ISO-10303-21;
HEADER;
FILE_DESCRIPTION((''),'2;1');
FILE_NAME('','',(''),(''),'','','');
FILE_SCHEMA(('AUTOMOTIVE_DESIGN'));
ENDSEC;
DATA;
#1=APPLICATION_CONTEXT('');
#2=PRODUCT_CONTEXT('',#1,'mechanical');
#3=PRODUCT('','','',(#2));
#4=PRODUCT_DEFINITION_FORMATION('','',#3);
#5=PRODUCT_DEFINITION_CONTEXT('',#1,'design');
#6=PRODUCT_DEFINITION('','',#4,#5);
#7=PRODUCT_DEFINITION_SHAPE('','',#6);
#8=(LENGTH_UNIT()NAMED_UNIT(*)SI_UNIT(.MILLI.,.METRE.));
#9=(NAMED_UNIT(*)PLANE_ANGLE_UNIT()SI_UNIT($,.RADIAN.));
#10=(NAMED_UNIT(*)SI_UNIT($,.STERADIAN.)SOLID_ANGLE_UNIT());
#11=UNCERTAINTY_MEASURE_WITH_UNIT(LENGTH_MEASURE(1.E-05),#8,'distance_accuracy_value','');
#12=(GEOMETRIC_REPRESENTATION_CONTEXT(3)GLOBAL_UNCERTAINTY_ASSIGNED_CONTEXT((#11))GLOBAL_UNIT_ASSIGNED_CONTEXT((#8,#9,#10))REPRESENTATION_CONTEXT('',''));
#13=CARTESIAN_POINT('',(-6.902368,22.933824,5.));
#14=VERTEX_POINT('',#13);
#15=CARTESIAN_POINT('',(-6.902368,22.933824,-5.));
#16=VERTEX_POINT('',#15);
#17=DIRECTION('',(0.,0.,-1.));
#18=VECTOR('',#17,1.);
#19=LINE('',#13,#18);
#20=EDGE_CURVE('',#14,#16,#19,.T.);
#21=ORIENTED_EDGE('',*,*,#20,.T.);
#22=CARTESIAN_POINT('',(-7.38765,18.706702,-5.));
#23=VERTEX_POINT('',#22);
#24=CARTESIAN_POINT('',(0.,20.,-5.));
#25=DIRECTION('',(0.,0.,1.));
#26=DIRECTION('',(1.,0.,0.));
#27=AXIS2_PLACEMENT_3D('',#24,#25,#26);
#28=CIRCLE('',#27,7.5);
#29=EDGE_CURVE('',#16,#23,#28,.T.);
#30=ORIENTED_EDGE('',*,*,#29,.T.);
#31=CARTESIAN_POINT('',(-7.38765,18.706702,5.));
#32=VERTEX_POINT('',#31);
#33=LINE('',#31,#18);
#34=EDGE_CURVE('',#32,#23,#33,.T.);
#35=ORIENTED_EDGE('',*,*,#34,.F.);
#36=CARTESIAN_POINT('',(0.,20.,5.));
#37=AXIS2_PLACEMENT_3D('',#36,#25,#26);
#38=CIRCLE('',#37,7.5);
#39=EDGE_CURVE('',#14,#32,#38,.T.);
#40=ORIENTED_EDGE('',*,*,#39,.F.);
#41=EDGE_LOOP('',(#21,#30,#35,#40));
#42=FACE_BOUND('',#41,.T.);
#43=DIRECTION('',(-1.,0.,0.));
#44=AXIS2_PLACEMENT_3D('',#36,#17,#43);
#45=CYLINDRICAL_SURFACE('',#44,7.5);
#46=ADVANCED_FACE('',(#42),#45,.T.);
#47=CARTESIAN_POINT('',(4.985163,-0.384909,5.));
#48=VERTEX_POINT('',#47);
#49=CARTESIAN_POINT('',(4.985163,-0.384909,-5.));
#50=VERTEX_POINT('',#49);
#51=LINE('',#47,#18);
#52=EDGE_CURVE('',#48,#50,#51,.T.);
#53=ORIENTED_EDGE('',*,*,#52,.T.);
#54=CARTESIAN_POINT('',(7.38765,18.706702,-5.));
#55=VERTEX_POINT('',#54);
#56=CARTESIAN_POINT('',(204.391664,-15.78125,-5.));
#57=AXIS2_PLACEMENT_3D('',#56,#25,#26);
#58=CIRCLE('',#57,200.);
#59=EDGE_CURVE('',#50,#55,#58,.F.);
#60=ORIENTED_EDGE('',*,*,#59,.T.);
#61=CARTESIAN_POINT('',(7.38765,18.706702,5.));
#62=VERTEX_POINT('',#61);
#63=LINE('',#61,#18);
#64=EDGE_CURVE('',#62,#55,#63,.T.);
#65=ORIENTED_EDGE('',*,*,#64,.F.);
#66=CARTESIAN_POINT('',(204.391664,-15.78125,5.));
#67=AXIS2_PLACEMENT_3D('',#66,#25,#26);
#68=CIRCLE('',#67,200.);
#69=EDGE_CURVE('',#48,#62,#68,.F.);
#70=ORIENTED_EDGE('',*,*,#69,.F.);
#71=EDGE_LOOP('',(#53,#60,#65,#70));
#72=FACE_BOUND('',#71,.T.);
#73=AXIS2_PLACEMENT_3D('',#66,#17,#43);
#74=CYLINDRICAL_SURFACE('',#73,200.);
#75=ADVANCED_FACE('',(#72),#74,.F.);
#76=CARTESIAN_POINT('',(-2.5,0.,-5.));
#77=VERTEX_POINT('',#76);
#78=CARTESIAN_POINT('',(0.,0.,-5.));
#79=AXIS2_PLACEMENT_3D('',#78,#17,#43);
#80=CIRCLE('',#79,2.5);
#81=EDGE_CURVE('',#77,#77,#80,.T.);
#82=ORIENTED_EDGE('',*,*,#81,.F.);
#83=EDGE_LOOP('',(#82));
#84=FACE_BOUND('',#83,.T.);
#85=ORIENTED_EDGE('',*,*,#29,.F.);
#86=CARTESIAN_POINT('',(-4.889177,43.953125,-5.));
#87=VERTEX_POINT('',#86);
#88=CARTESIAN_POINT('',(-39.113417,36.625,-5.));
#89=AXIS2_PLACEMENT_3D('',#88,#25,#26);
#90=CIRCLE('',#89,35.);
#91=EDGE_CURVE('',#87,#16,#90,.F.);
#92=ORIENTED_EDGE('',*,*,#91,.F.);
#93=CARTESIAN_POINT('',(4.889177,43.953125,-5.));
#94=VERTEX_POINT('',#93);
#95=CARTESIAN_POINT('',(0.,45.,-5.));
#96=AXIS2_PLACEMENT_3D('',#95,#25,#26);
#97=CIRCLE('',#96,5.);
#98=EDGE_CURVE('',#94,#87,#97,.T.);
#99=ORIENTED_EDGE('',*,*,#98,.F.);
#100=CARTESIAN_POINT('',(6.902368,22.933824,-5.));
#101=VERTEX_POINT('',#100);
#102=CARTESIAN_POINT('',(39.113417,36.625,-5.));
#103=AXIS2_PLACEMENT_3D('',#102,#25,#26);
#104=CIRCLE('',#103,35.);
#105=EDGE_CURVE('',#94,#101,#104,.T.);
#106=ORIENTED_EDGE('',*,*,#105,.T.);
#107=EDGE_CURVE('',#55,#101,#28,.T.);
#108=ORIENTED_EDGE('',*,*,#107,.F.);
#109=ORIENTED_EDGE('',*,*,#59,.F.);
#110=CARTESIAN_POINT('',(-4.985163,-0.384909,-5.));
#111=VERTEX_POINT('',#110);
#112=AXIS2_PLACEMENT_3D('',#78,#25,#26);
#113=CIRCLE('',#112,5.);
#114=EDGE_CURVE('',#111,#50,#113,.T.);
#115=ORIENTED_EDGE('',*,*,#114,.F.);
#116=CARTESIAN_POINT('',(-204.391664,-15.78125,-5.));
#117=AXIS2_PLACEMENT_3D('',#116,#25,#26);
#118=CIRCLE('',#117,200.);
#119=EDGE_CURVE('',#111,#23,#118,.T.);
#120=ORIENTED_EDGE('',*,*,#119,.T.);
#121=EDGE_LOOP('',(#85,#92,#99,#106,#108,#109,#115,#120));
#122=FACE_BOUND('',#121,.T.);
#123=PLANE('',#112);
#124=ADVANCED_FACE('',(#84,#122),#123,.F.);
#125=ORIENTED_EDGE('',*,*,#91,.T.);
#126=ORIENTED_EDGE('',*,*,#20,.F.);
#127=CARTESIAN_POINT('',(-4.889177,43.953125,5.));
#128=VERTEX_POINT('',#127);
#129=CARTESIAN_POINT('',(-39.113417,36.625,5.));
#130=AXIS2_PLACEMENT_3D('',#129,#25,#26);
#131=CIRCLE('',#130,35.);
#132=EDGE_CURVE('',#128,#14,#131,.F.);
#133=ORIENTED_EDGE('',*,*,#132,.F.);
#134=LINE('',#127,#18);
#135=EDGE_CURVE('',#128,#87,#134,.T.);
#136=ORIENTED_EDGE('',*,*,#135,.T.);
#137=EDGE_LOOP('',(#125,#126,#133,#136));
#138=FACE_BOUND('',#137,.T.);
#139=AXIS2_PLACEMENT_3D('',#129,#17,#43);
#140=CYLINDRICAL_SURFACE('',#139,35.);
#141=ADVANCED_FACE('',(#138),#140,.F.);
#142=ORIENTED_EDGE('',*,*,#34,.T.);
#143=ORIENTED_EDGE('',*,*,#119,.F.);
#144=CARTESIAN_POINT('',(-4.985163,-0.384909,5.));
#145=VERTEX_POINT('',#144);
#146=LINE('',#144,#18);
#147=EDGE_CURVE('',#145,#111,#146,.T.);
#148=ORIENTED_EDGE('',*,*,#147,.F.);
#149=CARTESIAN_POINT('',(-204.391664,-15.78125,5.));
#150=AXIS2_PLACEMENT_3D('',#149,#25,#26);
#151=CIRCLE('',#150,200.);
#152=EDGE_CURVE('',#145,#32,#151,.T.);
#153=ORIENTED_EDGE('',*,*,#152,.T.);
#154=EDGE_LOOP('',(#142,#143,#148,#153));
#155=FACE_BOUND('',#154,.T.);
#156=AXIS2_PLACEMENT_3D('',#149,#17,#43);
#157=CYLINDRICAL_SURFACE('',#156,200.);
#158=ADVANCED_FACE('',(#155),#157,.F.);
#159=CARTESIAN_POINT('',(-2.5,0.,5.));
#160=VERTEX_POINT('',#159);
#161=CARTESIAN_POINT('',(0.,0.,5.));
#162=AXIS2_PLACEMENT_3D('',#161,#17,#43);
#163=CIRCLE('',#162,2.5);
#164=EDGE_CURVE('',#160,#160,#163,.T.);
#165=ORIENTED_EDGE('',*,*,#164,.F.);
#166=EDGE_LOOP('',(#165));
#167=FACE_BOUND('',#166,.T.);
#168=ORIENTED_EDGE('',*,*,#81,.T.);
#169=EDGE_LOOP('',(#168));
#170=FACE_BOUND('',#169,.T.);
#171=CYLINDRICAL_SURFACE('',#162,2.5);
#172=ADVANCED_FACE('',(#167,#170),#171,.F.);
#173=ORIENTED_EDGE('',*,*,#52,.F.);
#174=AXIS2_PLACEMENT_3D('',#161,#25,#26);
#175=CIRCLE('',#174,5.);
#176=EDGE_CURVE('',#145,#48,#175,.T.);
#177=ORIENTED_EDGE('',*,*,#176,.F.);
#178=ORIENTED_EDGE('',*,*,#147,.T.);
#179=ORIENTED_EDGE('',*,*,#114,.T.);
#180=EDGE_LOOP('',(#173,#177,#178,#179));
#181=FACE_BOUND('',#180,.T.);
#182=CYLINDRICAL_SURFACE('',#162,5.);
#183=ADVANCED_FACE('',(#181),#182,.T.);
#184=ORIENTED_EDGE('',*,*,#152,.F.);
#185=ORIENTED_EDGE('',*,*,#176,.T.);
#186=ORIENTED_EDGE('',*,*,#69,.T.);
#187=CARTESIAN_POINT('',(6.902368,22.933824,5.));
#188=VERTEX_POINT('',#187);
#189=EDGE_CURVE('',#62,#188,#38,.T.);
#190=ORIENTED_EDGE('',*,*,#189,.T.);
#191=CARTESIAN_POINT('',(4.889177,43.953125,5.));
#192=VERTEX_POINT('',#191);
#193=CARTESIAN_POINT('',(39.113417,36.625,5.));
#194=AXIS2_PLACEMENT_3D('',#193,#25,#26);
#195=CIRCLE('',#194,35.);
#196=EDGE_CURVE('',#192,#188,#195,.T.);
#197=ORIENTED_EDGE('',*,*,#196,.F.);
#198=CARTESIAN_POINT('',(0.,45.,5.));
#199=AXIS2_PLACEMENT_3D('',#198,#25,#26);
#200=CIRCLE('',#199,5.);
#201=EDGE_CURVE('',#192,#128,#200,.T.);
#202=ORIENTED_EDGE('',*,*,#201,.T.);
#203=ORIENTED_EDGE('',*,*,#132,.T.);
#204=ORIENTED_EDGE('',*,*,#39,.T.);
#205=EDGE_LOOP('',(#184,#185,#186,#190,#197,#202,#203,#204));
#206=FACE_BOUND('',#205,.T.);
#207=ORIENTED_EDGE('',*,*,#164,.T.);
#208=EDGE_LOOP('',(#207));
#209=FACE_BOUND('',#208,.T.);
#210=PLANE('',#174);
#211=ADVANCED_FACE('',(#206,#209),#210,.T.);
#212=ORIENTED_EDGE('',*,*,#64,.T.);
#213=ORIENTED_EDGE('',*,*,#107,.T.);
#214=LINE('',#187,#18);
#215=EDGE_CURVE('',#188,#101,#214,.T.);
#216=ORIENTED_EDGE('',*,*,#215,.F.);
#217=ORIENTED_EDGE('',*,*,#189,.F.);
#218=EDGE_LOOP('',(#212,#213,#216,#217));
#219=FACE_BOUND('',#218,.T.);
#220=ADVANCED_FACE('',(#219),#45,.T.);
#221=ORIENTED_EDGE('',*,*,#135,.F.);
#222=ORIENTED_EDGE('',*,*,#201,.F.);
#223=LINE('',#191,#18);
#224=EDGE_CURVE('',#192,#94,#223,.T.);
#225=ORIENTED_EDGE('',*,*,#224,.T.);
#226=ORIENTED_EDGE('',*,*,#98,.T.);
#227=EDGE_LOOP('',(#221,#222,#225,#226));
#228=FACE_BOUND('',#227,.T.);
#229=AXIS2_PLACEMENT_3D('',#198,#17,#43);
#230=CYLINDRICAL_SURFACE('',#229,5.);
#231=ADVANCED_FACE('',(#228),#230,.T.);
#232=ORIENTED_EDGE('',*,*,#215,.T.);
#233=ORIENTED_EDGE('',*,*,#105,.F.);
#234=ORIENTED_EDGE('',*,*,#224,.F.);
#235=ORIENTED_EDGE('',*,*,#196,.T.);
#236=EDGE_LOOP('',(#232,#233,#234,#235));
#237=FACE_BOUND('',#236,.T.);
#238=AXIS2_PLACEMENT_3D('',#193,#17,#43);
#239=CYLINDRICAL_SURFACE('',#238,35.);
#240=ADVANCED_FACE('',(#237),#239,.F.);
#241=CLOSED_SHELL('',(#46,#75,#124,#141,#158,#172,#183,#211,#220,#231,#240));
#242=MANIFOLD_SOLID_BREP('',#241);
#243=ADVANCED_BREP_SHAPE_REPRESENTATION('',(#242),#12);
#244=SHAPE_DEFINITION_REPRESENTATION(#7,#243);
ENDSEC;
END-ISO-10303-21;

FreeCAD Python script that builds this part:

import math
import FreeCAD as App
import Part
import Sketcher
from FreeCAD import Vector

doc = App.newDocument("Part")
body = doc.addObject("PartDesign::Body", "Body")

# Sketch on XY plane
sketch1 = body.newObject("Sketcher::SketchObject", "Sketch")
sketch1.AttachmentSupport = (doc.getObject("XY_Plane"), [""])
sketch1.MapMode = "FlatFace"
sketch1.addGeometry(Part.ArcOfCircle(Part.Circle(Vector(39.1, 36.6, 0), Vector(0, 0, 1), 35), math.radians(168), math.radians(203)), False)
sketch1.addGeometry(Part.ArcOfCircle(Part.Circle(Vector(0, 45, 0), Vector(0, 0, 1), 5), math.radians(-12), math.radians(192)), False)
sketch1.addGeometry(Part.ArcOfCircle(Part.Circle(Vector(-39.1, 36.6, 0), Vector(0, 0, 1), 35), math.radians(-23), math.radians(12)), False)
sketch1.addGeometry(Part.ArcOfCircle(Part.Circle(Vector(0, 20, 0), Vector(0, 0, 1), 7.5), math.radians(157), math.radians(190)), False)
sketch1.addGeometry(Part.ArcOfCircle(Part.Circle(Vector(-204.4, -15.8, 0), Vector(0, 0, 1), 200), math.radians(4.42), math.radians(9.93)), False)
sketch1.addGeometry(Part.ArcOfCircle(Part.Circle(Vector(0, 0, 0), Vector(0, 0, 1), 5), math.radians(-176), math.radians(-4)), False)
sketch1.addGeometry(Part.ArcOfCircle(Part.Circle(Vector(204.4, -15.8, 0), Vector(0, 0, 1), 200), math.radians(170.07), math.radians(175.58)), False)
sketch1.addGeometry(Part.ArcOfCircle(Part.Circle(Vector(0, 20, 0), Vector(0, 0, 1), 7.5), math.radians(-10), math.radians(23)), False)
sketch1.addConstraint(Sketcher.Constraint("Tangent", 0, 1, 1, 1))
sketch1.addConstraint(Sketcher.Constraint("Tangent", 1, 2, 2, 2))
sketch1.addConstraint(Sketcher.Constraint("Tangent", 2, 1, 3, 1))
sketch1.addConstraint(Sketcher.Constraint("Tangent", 3, 2, 4, 2))
sketch1.addConstraint(Sketcher.Constraint("Tangent", 4, 1, 5, 1))
sketch1.addConstraint(Sketcher.Constraint("Tangent", 5, 2, 6, 2))
sketch1.addConstraint(Sketcher.Constraint("Tangent", 6, 1, 7, 1))
sketch1.addConstraint(Sketcher.Constraint("Tangent", 7, 2, 0, 2))
sketch1.addConstraint(Sketcher.Constraint("Coincident", 5, 3, -1, 1))
sketch1.addConstraint(Sketcher.Constraint("Coincident", 7, 3, 3, 3))
sketch1.addConstraint(Sketcher.Constraint("Equal", 0, 2))
sketch1.addConstraint(Sketcher.Constraint("Equal", 1, 5))
sketch1.addConstraint(Sketcher.Constraint("Equal", 4, 6))
sketch1.addConstraint(Sketcher.Constraint("Equal", 3, 7))
sketch1.addConstraint(Sketcher.Constraint("Symmetric", 0, 3, 2, 3, -2))
sketch1.addConstraint(Sketcher.Constraint("Radius", 0, 35.0))
sketch1.addConstraint(Sketcher.Constraint("Radius", 1, 5.0))
sketch1.addConstraint(Sketcher.Constraint("Radius", 4, 199.999999))
sketch1.addConstraint(Sketcher.Constraint("Radius", 3, 7.5))
sketch1.addConstraint(Sketcher.Constraint("DistanceY", -1, 1, 1, 3, 45.0))
sketch1.addConstraint(Sketcher.Constraint("DistanceY", -1, 1, 3, 3, 20.0))
pad1 = body.newObject("PartDesign::Pad", "Pad")
pad1.Profile = sketch1
pad1.Length = 10
pad1.Midplane = True

# Sketch on XY plane
sketch2 = body.newObject("Sketcher::SketchObject", "Sketch001")
sketch2.AttachmentSupport = (doc.getObject("XY_Plane"), [""])
sketch2.MapMode = "FlatFace"
sketch2.AttachmentOffset = App.Placement(Vector(0, 0, -5), App.Rotation())
sketch2.addGeometry(Part.Circle(Vector(0, 0, 0), Vector(0, 0, 1), 2.5), False)
sketch2.addConstraint(Sketcher.Constraint("Coincident", 0, 3, -1, 1))
sketch2.addConstraint(Sketcher.Constraint("Diameter", 0, 5.0))
pocket1 = body.newObject("PartDesign::Pocket", "Pocket")
pocket1.Profile = sketch2
pocket1.Length = 10
pocket1.Reversed = True

doc.recompute()
